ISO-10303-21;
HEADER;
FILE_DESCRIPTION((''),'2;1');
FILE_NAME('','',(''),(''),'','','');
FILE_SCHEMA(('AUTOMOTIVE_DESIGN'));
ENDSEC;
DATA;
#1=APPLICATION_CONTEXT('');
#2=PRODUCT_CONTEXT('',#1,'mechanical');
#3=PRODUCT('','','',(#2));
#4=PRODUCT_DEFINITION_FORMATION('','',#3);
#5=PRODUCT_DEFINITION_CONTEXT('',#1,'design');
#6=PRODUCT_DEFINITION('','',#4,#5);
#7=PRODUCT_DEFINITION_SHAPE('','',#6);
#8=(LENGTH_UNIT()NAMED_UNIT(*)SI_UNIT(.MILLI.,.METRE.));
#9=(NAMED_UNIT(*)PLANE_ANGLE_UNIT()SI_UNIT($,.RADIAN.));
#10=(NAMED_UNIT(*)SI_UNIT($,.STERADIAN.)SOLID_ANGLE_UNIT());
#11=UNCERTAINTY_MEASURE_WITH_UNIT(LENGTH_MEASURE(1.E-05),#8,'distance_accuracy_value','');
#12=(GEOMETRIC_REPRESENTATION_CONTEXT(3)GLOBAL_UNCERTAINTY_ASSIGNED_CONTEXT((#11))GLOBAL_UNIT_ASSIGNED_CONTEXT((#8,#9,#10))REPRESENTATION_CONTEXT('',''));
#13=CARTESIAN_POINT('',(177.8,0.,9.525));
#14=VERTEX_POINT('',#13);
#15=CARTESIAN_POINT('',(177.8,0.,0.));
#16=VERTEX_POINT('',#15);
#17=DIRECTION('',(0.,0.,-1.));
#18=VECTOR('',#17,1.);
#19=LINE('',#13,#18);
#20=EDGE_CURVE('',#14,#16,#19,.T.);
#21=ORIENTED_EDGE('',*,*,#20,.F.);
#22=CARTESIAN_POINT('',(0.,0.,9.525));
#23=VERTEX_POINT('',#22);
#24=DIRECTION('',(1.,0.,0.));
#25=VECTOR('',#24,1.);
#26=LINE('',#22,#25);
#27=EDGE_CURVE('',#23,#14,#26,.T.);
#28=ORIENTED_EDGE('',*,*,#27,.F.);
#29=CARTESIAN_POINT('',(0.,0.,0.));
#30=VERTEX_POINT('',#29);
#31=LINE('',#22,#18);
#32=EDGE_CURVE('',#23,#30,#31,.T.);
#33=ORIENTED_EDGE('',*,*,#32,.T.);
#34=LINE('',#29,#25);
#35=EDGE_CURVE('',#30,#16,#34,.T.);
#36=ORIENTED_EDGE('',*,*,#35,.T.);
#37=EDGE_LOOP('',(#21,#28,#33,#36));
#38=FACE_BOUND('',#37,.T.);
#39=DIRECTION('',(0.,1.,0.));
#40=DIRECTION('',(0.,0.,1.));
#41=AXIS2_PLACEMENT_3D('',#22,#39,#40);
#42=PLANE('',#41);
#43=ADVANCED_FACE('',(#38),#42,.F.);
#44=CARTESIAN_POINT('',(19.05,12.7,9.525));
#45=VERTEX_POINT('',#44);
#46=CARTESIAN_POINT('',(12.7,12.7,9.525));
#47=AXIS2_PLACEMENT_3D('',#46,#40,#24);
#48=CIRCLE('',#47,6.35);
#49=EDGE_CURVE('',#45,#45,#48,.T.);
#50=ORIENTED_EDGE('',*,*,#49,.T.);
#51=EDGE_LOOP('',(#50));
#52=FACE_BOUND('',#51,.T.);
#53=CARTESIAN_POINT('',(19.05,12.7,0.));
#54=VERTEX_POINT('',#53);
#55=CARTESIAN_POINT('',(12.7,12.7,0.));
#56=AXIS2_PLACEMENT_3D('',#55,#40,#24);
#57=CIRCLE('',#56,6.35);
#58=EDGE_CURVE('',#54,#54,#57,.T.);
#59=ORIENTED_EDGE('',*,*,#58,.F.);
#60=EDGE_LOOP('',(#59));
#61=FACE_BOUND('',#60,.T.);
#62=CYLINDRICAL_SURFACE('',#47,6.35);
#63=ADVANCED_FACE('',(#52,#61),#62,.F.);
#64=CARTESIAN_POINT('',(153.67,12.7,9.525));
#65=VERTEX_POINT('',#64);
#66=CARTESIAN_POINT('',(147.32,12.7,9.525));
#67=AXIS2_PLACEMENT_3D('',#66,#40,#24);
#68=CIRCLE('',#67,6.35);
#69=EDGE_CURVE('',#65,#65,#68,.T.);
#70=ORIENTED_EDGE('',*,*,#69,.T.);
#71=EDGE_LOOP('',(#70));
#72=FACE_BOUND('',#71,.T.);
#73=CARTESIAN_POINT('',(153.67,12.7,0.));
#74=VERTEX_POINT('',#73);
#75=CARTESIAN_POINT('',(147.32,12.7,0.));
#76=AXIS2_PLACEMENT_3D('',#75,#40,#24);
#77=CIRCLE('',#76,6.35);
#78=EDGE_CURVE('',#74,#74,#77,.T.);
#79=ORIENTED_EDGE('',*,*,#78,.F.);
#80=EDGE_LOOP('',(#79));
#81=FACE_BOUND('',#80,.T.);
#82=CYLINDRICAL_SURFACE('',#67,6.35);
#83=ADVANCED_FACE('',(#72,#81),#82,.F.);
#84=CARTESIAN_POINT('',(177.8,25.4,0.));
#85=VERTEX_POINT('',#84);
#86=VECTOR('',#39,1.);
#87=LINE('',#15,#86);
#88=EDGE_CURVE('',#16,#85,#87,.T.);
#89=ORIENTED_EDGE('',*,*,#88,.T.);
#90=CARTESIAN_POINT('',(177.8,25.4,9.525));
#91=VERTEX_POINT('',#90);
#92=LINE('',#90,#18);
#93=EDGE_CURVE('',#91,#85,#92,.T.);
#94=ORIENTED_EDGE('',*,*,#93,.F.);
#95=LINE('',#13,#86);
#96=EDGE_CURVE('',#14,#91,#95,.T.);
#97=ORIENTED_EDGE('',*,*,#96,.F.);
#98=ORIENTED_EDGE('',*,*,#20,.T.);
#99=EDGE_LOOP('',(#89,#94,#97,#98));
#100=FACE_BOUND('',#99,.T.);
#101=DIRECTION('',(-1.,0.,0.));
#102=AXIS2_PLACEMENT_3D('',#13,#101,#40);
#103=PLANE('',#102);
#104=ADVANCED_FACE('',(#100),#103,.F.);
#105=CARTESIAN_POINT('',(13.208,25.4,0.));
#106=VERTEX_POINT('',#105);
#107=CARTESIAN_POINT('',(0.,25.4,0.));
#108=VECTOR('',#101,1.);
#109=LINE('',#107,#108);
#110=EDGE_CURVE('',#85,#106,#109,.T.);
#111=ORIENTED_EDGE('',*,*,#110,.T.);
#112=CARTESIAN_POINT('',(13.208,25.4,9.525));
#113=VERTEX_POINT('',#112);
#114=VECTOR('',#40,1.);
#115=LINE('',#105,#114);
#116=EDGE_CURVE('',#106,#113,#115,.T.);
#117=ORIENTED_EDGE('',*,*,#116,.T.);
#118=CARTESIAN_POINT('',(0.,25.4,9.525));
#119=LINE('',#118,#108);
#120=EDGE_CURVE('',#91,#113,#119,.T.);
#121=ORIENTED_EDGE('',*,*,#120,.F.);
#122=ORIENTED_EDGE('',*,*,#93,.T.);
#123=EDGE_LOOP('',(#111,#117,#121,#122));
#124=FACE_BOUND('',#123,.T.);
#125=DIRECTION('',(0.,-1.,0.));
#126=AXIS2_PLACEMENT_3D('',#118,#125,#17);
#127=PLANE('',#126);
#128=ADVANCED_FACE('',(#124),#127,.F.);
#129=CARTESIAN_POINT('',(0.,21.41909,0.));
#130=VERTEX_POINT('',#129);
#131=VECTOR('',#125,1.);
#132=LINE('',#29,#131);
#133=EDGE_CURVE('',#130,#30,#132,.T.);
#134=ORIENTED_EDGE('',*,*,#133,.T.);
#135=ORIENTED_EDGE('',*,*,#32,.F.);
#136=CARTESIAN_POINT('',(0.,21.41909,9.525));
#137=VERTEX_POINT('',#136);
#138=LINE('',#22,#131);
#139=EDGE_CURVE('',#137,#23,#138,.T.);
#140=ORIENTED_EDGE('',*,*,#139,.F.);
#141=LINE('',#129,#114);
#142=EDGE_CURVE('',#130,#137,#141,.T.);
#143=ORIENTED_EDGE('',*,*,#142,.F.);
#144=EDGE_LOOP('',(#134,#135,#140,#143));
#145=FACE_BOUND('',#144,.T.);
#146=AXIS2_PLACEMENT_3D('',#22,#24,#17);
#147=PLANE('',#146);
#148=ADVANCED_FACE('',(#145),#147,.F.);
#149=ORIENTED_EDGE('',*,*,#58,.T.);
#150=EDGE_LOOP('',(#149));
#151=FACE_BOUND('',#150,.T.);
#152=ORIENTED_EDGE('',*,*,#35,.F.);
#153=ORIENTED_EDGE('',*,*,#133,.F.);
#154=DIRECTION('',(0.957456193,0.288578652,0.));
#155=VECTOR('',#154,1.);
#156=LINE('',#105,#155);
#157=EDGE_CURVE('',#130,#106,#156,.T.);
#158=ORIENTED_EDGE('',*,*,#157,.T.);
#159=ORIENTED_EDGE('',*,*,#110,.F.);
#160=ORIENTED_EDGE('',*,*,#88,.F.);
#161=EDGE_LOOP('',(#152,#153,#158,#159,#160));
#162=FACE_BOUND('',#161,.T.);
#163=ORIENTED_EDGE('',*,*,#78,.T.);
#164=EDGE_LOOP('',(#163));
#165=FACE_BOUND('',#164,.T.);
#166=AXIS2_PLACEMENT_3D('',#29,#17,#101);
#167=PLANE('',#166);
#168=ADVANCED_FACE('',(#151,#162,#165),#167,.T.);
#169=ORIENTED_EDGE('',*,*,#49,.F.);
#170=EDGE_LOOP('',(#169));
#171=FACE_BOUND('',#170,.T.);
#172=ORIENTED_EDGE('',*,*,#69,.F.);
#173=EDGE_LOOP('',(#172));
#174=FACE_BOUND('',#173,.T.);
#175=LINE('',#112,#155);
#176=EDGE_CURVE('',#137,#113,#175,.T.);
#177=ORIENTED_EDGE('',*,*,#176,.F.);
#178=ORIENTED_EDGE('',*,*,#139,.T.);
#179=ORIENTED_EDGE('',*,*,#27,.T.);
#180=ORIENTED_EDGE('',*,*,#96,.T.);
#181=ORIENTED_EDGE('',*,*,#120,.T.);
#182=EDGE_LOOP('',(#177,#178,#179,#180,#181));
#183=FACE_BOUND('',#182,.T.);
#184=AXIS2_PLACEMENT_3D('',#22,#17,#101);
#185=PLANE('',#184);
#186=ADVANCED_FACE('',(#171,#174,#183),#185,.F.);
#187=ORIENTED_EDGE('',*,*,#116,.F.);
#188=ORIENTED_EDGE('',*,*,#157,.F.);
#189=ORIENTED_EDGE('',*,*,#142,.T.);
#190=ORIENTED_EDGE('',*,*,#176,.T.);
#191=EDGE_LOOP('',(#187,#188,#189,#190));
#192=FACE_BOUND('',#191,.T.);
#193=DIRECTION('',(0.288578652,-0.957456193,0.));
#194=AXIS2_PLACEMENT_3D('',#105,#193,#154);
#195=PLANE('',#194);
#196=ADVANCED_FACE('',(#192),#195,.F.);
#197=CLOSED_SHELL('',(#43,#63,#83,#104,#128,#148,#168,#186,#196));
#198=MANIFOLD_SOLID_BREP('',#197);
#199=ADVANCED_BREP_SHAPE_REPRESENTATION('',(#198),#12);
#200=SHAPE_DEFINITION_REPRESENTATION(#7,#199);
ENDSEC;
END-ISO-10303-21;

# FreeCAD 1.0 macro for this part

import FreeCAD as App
import Part
import Sketcher
from FreeCAD import Vector
Q = App.Units.Quantity

doc = App.newDocument("Part")
body = doc.addObject("PartDesign::Body", "Body")

# Sketch on XY plane
sketch1 = doc.addObject("Sketcher::SketchObject", "Sketch")
body.addObject(sketch1)
sketch1.AttachmentSupport = (doc.XY_Plane, [""])
sketch1.MapMode = "FlatFace"
sketch1.addGeometry(Part.LineSegment(Vector(0, 25.4, 0), Vector(0, 0, 0)), False)
sketch1.addGeometry(Part.LineSegment(Vector(0, 0, 0), Vector(177.8, 0, 0)), False)
sketch1.addGeometry(Part.LineSegment(Vector(177.8, 0, 0), Vector(177.8, 25.4, 0)), False)
sketch1.addGeometry(Part.LineSegment(Vector(177.8, 25.4, 0), Vector(0, 25.4, 0)), False)
sketch1.addConstraint(Sketcher.Constraint("Coincident", 0, 2, 1, 1))
sketch1.addConstraint(Sketcher.Constraint("Coincident", 1, 2, 2, 1))
sketch1.addConstraint(Sketcher.Constraint("Coincident", 2, 2, 3, 1))
sketch1.addConstraint(Sketcher.Constraint("Coincident", 3, 2, 0, 1))
sketch1.addConstraint(Sketcher.Constraint("Vertical", 0))
sketch1.addConstraint(Sketcher.Constraint("Horizontal", 1))
sketch1.addConstraint(Sketcher.Constraint("Vertical", 2))
sketch1.addConstraint(Sketcher.Constraint("Horizontal", 3))
sketch1.addConstraint(Sketcher.Constraint("Coincident", 0, 2, -1, 1))
sketch1.addConstraint(Sketcher.Constraint("DistanceX", 1, 1, 1, 2, Q("7 in")))
sketch1.addConstraint(Sketcher.Constraint("DistanceY", 0, 2, 0, 1, Q("1 in")))
pad1 = doc.addObject("PartDesign::Pad", "Pad")
body.addObject(pad1)
pad1.Profile = sketch1
pad1.Length = Q("0.375 in")

# Sketch on XY plane
sketch2 = doc.addObject("Sketcher::SketchObject", "Sketch001")
body.addObject(sketch2)
sketch2.AttachmentSupport = (doc.XY_Plane, [""])
sketch2.MapMode = "FlatFace"
sketch2.AttachmentOffset = App.Placement(Vector(0, 0, 0.375 * 25.4), App.Rotation())
sketch2.addGeometry(Part.Circle(Vector(12.7, 12.7, 0), Vector(0, 0, 1), 6.35), False)
sketch2.addGeometry(Part.Circle(Vector(147.32, 12.7, 0), Vector(0, 0, 1), 6.35), False)
sketch2.addConstraint(Sketcher.Constraint("Equal", 0, 1))
sketch2.addConstraint(Sketcher.Constraint("Horizontal", 0, 3, 1, 3))
sketch2.addConstraint(Sketcher.Constraint("Diameter", 0, Q("0.5 in")))
sketch2.addConstraint(Sketcher.Constraint("DistanceX", -1, 1, 0, 3, Q("0.5 in")))
sketch2.addConstraint(Sketcher.Constraint("DistanceY", -1, 1, 0, 3, Q("0.5 in")))
sketch2.addConstraint(Sketcher.Constraint("DistanceX", -1, 1, 1, 3, Q("5.8 in")))
doc.recompute()
hole = doc.addObject("PartDesign::Hole", "Hole")
body.addObject(hole)
hole.Profile = sketch2
hole.ThreadType = "None"
hole.Diameter = Q("0.5 in")
hole.DepthType = "ThroughAll"

# Sketch on XY plane
sketch3 = doc.addObject("Sketcher::SketchObject", "Sketch002")
body.addObject(sketch3)
sketch3.AttachmentSupport = (doc.XY_Plane, [""])
sketch3.MapMode = "FlatFace"
sketch3.AttachmentOffset = App.Placement(Vector(0, 0, 0.375 * 25.4), App.Rotation())
sketch3.addGeometry(Part.LineSegment(Vector(0, 21.41909, 0), Vector(13.208, 25.4, 0)), False)
sketch3.addGeometry(Part.LineSegment(Vector(13.208, 25.4, 0), Vector(0, 25.4, 0)), False)
sketch3.addGeometry(Part.LineSegment(Vector(0, 25.4, 0), Vector(0, 21.41909, 0)), False)
sketch3.addConstraint(Sketcher.Constraint("Coincident", 0, 2, 1, 1))
sketch3.addConstraint(Sketcher.Constraint("Coincident", 1, 2, 2, 1))
sketch3.addConstraint(Sketcher.Constraint("Coincident", 2, 2, 0, 1))
sketch3.addConstraint(Sketcher.Constraint("Horizontal", 1))
sketch3.addConstraint(Sketcher.Constraint("Vertical", 2))
sketch3.addConstraint(Sketcher.Constraint("PointOnObject", 1, 2, -2))
sketch3.addConstraint(Sketcher.Constraint("DistanceY", -1, 1, 0, 2, Q("1 in")))
sketch3.addConstraint(Sketcher.Constraint("DistanceX", 1, 2, 1, 1, Q("0.52 in")))
sketch3.addConstraint(Sketcher.Constraint("DistanceY", 2, 2, 2, 1, Q("3.98091 mm")))
pocket1 = doc.addObject("PartDesign::Pocket", "Pocket")
body.addObject(pocket1)
pocket1.Profile = sketch3
pocket1.Type = "ThroughAll"

doc.recompute()
